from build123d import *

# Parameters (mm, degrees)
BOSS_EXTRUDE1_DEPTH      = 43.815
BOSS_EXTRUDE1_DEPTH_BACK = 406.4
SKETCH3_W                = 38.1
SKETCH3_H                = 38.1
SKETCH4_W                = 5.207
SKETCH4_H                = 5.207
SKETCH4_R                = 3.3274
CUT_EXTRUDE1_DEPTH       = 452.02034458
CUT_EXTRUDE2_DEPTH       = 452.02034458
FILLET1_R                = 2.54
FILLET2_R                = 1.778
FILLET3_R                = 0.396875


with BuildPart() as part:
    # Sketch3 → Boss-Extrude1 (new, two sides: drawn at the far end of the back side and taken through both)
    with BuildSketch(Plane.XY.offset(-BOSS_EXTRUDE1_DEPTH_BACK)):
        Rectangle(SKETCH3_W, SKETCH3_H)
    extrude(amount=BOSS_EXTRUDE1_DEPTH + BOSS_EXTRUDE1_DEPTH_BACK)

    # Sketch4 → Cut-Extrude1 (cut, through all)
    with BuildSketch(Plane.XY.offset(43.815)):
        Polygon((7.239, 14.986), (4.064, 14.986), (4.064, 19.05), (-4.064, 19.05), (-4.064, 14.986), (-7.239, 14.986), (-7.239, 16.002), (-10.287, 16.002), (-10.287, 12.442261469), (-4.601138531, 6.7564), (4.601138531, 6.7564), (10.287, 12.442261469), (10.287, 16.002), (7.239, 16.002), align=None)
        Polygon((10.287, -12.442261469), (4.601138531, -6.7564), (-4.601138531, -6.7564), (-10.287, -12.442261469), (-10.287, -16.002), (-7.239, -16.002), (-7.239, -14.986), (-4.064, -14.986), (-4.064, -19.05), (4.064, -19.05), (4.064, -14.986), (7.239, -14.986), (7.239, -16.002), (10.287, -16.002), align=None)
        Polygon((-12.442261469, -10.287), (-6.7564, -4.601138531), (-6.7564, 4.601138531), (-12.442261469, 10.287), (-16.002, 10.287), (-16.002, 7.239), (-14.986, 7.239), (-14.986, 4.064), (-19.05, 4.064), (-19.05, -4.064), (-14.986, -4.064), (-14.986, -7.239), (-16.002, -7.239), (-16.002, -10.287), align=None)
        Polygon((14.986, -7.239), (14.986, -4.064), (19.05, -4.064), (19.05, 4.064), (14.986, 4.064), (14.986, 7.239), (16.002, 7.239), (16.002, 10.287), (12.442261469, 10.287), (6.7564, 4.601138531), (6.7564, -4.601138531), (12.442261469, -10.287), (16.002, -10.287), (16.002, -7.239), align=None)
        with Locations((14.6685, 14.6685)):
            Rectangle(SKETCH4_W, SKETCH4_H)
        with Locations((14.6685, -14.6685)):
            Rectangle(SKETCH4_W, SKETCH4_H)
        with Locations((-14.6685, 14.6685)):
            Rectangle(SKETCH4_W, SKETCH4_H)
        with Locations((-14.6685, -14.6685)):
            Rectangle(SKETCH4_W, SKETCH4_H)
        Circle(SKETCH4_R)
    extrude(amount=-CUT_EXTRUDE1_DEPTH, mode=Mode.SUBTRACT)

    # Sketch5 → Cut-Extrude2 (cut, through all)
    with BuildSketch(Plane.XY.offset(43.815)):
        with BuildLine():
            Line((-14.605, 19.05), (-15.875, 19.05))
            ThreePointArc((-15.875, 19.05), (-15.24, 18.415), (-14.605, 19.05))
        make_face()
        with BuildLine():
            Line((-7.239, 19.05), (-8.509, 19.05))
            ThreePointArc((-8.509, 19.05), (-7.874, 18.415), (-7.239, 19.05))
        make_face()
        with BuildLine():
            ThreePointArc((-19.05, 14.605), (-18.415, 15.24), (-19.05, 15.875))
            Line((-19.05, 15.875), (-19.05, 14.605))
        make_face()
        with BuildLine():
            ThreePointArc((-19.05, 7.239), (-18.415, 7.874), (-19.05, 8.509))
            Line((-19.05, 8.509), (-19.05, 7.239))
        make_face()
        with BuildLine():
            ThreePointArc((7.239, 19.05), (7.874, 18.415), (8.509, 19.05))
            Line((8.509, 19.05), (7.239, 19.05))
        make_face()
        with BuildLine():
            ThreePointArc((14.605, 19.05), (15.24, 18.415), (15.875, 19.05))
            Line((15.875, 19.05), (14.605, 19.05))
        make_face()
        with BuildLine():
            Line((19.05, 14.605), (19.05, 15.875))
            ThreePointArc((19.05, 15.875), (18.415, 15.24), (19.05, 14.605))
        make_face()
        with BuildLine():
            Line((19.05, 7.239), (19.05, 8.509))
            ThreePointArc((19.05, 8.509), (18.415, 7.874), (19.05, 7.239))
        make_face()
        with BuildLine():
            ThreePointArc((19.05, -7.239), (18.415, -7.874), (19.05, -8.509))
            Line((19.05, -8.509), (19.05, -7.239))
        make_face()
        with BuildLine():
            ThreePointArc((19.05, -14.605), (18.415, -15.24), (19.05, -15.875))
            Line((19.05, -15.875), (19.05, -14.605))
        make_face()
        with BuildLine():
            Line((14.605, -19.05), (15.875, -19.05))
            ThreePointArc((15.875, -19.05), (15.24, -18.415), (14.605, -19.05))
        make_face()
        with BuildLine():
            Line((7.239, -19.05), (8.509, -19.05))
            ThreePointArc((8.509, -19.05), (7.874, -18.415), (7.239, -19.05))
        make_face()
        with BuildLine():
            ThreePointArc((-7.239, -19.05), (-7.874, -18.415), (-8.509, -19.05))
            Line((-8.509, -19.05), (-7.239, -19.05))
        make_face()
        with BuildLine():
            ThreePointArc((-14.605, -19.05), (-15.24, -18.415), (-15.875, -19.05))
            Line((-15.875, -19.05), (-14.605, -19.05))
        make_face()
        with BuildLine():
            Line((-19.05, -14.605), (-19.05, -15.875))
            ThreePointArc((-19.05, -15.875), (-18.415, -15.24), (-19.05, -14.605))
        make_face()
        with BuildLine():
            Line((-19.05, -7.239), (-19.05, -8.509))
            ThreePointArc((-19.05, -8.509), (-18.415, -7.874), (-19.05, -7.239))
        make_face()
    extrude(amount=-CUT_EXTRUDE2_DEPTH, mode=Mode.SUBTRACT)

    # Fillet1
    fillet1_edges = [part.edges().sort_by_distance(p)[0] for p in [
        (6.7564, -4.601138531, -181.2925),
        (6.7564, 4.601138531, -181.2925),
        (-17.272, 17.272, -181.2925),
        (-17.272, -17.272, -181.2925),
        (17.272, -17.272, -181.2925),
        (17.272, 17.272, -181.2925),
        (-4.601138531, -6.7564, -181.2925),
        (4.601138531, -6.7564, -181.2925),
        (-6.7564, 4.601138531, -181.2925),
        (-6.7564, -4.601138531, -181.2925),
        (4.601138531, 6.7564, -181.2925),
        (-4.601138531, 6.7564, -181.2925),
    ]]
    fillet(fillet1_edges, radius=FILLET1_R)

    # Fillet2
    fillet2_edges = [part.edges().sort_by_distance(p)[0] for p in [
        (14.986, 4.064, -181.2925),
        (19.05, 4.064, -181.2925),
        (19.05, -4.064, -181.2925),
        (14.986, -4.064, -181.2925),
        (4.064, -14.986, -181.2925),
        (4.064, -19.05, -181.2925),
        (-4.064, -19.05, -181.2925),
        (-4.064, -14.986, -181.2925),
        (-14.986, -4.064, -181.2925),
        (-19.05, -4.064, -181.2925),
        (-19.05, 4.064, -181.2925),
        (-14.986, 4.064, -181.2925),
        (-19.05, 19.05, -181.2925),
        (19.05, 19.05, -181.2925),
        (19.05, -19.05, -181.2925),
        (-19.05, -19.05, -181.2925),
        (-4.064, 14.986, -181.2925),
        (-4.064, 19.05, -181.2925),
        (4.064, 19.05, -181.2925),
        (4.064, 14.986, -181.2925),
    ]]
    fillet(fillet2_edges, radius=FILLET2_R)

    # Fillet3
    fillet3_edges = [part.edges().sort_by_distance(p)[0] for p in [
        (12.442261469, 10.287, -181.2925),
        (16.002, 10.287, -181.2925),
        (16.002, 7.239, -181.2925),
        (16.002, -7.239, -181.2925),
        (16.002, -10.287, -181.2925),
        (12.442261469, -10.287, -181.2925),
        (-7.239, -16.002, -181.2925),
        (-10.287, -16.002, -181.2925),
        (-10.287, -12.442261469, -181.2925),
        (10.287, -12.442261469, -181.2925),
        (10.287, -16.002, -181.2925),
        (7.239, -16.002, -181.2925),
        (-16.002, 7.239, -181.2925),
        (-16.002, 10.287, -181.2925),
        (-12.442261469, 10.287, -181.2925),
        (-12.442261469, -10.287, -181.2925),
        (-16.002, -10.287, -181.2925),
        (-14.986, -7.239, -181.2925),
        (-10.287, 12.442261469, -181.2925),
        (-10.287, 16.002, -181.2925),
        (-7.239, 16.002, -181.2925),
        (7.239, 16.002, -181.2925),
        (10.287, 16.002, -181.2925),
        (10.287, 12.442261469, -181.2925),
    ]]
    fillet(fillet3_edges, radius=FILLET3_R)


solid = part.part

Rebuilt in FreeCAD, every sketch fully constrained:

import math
import FreeCAD as App
import Part
import Sketcher
from FreeCAD import Vector
Q = App.Units.Quantity


def edges_at(feature, points):
    """Names of the edges that pass closest to the given points."""
    edges = feature.Shape.Edges
    near = lambda p: min(range(len(edges)), key=lambda i: edges[i].distToShape(Part.Vertex(*p))[0])
    return sorted({f"Edge{near(p) + 1}" for p in points})

doc = App.newDocument("Part")
params = doc.addObject("Spreadsheet::Sheet", "Params")
for row, (alias, value) in enumerate([
    ("sketch1_width", "1.5 in"),
    ("pad1_length", "1.725 in"),
    ("pad1_length2", "16 in"),
    ("sketch2_diameter", "0.262 in"),
    ("sketch2_width", "0.32 in"),
    ("sketch2_width2", "0.12 in"),
    ("sketch2_width3", "0.04 in"),
    ("sketch2_width4", "0.16 in"),
    ("sketch3_radius", "0.025 in"),
    ("fillet_radius", "0.1 in"),
    ("fillet2_radius", "0.07 in"),
    ("fillet3_radius", "0.015625 in"),
], start=1):
    params.set(f"A{row}", alias)
    params.set(f"B{row}", "=" + value)
    params.setAlias(f"B{row}", alias)

body = doc.addObject("PartDesign::Body", "Body")

# Sketch on XY plane
sketch1 = body.newObject("Sketcher::SketchObject", "Sketch")
sketch1.AttachmentSupport = (doc.getObject("XY_Plane"), [""])
sketch1.MapMode = "FlatFace"
sketch1.addGeometry([
    Part.LineSegment(Vector(-19, 19, 0), Vector(-19, -19, 0)),
    Part.LineSegment(Vector(-19, -19, 0), Vector(19, -19, 0)),
    Part.LineSegment(Vector(19, -19, 0), Vector(19, 19, 0)),
    Part.LineSegment(Vector(19, 19, 0), Vector(-19, 19, 0)),
], False)
sketch1.addConstraint([
    Sketcher.Constraint("Coincident", 0, 2, 1, 1),
    Sketcher.Constraint("Coincident", 1, 2, 2, 1),
    Sketcher.Constraint("Coincident", 2, 2, 3, 1),
    Sketcher.Constraint("Coincident", 3, 2, 0, 1),
    Sketcher.Constraint("Vertical", 0),
    Sketcher.Constraint("Horizontal", 1),
    Sketcher.Constraint("Vertical", 2),
    Sketcher.Constraint("Horizontal", 3),
    Sketcher.Constraint("Symmetric", 0, 2, 2, 2, -1, 1),
    Sketcher.Constraint("Equal", 3, 0),
    Sketcher.Constraint("DistanceX", 1, 1, 1, 2, Q("1.5 in")),
])
sketch1.setExpression("Constraints[10]", "Params.sketch1_width")
pad1 = body.newObject("PartDesign::Pad", "Pad")
pad1.Profile = sketch1
pad1.Type = "TwoLengths"
pad1.setExpression("Length", "Params.pad1_length")
pad1.setExpression("Length2", "Params.pad1_length2")

# Sketch on XY plane
sketch2 = body.newObject("Sketcher::SketchObject", "Sketch001")
sketch2.AttachmentSupport = (doc.getObject("XY_Plane"), [""])
sketch2.MapMode = "FlatFace"
sketch2.AttachmentOffset = App.Placement(Vector(0, 0, 1.725 * 25.4), App.Rotation())
sketch2.addGeometry([
    Part.LineSegment(Vector(7.2, 15, 0), Vector(4.1, 15, 0)),  # 0
    Part.LineSegment(Vector(4.1, 15, 0), Vector(4.1, 19.1, 0)),  # 1
    Part.LineSegment(Vector(4.1, 19.1, 0), Vector(-4.1, 19.1, 0)),  # 2
    Part.LineSegment(Vector(-4.1, 19.1, 0), Vector(-4.1, 15, 0)),  # 3
    Part.LineSegment(Vector(-4.1, 15, 0), Vector(-7.2, 15, 0)),  # 4
    Part.LineSegment(Vector(-7.2, 15, 0), Vector(-7.2, 16, 0)),  # 5
    Part.LineSegment(Vector(-7.2, 16, 0), Vector(-10.3, 16, 0)),  # 6
    Part.LineSegment(Vector(-10.3, 16, 0), Vector(-10.3, 12.4, 0)),  # 7
    Part.LineSegment(Vector(-10.3, 12.4, 0), Vector(-4.6, 6.8, 0)),  # 8
    Part.LineSegment(Vector(-4.6, 6.8, 0), Vector(4.6, 6.8, 0)),  # 9
    Part.LineSegment(Vector(4.6, 6.8, 0), Vector(10.3, 12.4, 0)),  # 10
    Part.LineSegment(Vector(10.3, 12.4, 0), Vector(10.3, 16, 0)),  # 11
    Part.LineSegment(Vector(10.3, 16, 0), Vector(7.2, 16, 0)),  # 12
    Part.LineSegment(Vector(7.2, 16, 0), Vector(7.2, 15, 0)),  # 13
    Part.LineSegment(Vector(10.3, -12.4, 0), Vector(4.6, -6.8, 0)),  # 14
    Part.LineSegment(Vector(4.6, -6.8, 0), Vector(-4.6, -6.8, 0)),  # 15
    Part.LineSegment(Vector(-4.6, -6.8, 0), Vector(-10.3, -12.4, 0)),  # 16
    Part.LineSegment(Vector(-10.3, -12.4, 0), Vector(-10.3, -16, 0)),  # 17
    Part.LineSegment(Vector(-10.3, -16, 0), Vector(-7.2, -16, 0)),  # 18
    Part.LineSegment(Vector(-7.2, -16, 0), Vector(-7.2, -15, 0)),  # 19
    Part.LineSegment(Vector(-7.2, -15, 0), Vector(-4.1, -15, 0)),  # 20
    Part.LineSegment(Vector(-4.1, -15, 0), Vector(-4.1, -19.1, 0)),  # 21
    Part.LineSegment(Vector(-4.1, -19.1, 0), Vector(4.1, -19.1, 0)),  # 22
    Part.LineSegment(Vector(4.1, -19.1, 0), Vector(4.1, -15, 0)),  # 23
    Part.LineSegment(Vector(4.1, -15, 0), Vector(7.2, -15, 0)),  # 24
    Part.LineSegment(Vector(7.2, -15, 0), Vector(7.2, -16, 0)),  # 25
    Part.LineSegment(Vector(7.2, -16, 0), Vector(10.3, -16, 0)),  # 26
    Part.LineSegment(Vector(10.3, -16, 0), Vector(10.3, -12.4, 0)),  # 27
    Part.LineSegment(Vector(-12.4, -10.3, 0), Vector(-6.8, -4.6, 0)),  # 28
    Part.LineSegment(Vector(-6.8, -4.6, 0), Vector(-6.8, 4.6, 0)),  # 29
    Part.LineSegment(Vector(-6.8, 4.6, 0), Vector(-12.4, 10.3, 0)),  # 30
    Part.LineSegment(Vector(-12.4, 10.3, 0), Vector(-16, 10.3, 0)),  # 31
    Part.LineSegment(Vector(-16, 10.3, 0), Vector(-16, 7.2, 0)),  # 32
    Part.LineSegment(Vector(-16, 7.2, 0), Vector(-15, 7.2, 0)),  # 33
    Part.LineSegment(Vector(-15, 7.2, 0), Vector(-15, 4.1, 0)),  # 34
    Part.LineSegment(Vector(-15, 4.1, 0), Vector(-19.1, 4.1, 0)),  # 35
    Part.LineSegment(Vector(-19.1, 4.1, 0), Vector(-19.1, -4.1, 0)),  # 36
    Part.LineSegment(Vector(-19.1, -4.1, 0), Vector(-15, -4.1, 0)),  # 37
    Part.LineSegment(Vector(-15, -4.1, 0), Vector(-15, -7.2, 0)),  # 38
    Part.LineSegment(Vector(-15, -7.2, 0), Vector(-16, -7.2, 0)),  # 39
    Part.LineSegment(Vector(-16, -7.2, 0), Vector(-16, -10.3, 0)),  # 40
    Part.LineSegment(Vector(-16, -10.3, 0), Vector(-12.4, -10.3, 0)),  # 41
    Part.LineSegment(Vector(15, -7.2, 0), Vector(15, -4.1, 0)),  # 42
    Part.LineSegment(Vector(15, -4.1, 0), Vector(19.1, -4.1, 0)),  # 43
    Part.LineSegment(Vector(19.1, -4.1, 0), Vector(19.1, 4.1, 0)),  # 44
    Part.LineSegment(Vector(19.1, 4.1, 0), Vector(15, 4.1, 0)),  # 45
    Part.LineSegment(Vector(15, 4.1, 0), Vector(15, 7.2, 0)),  # 46
    Part.LineSegment(Vector(15, 7.2, 0), Vector(16, 7.2, 0)),  # 47
    Part.LineSegment(Vector(16, 7.2, 0), Vector(16, 10.3, 0)),  # 48
    Part.LineSegment(Vector(16, 10.3, 0), Vector(12.4, 10.3, 0)),  # 49
    Part.LineSegment(Vector(12.4, 10.3, 0), Vector(6.8, 4.6, 0)),  # 50
    Part.LineSegment(Vector(6.8, 4.6, 0), Vector(6.8, -4.6, 0)),  # 51
    Part.LineSegment(Vector(6.8, -4.6, 0), Vector(12.4, -10.3, 0)),  # 52
    Part.LineSegment(Vector(12.4, -10.3, 0), Vector(16, -10.3, 0)),  # 53
    Part.LineSegment(Vector(16, -10.3, 0), Vector(16, -7.2, 0)),  # 54
    Part.LineSegment(Vector(16, -7.2, 0), Vector(15, -7.2, 0)),  # 55
    Part.LineSegment(Vector(12.1, 17.3, 0), Vector(12.1, 12.1, 0)),  # 56
    Part.LineSegment(Vector(12.1, 12.1, 0), Vector(17.3, 12.1, 0)),  # 57
    Part.LineSegment(Vector(17.3, 12.1, 0), Vector(17.3, 17.3, 0)),  # 58
    Part.LineSegment(Vector(17.3, 17.3, 0), Vector(12.1, 17.3, 0)),  # 59
    Part.LineSegment(Vector(12.1, -12.1, 0), Vector(12.1, -17.3, 0)),  # 60
    Part.LineSegment(Vector(12.1, -17.3, 0), Vector(17.3, -17.3, 0)),  # 61
    Part.LineSegment(Vector(17.3, -17.3, 0), Vector(17.3, -12.1, 0)),  # 62
    Part.LineSegment(Vector(17.3, -12.1, 0), Vector(12.1, -12.1, 0)),  # 63
    Part.LineSegment(Vector(-17.3, 17.3, 0), Vector(-17.3, 12.1, 0)),  # 64
    Part.LineSegment(Vector(-17.3, 12.1, 0), Vector(-12.1, 12.1, 0)),  # 65
    Part.LineSegment(Vector(-12.1, 12.1, 0), Vector(-12.1, 17.3, 0)),  # 66
    Part.LineSegment(Vector(-12.1, 17.3, 0), Vector(-17.3, 17.3, 0)),  # 67
    Part.LineSegment(Vector(-17.3, -12.1, 0), Vector(-17.3, -17.3, 0)),  # 68
    Part.LineSegment(Vector(-17.3, -17.3, 0), Vector(-12.1, -17.3, 0)),  # 69
    Part.LineSegment(Vector(-12.1, -17.3, 0), Vector(-12.1, -12.1, 0)),  # 70
    Part.LineSegment(Vector(-12.1, -12.1, 0), Vector(-17.3, -12.1, 0)),  # 71
    Part.Circle(Vector(0, 0, 0), Vector(0, 0, 1), 3.3),  # 72
], False)
sketch2.addConstraint([
    Sketcher.Constraint("Coincident", 0, 2, 1, 1),
    Sketcher.Constraint("Coincident", 1, 2, 2, 1),
    Sketcher.Constraint("Coincident", 2, 2, 3, 1),
    Sketcher.Constraint("Coincident", 3, 2, 4, 1),
    Sketcher.Constraint("Coincident", 4, 2, 5, 1),
    Sketcher.Constraint("Coincident", 5, 2, 6, 1),
    Sketcher.Constraint("Coincident", 6, 2, 7, 1),
    Sketcher.Constraint("Coincident", 7, 2, 8, 1),
    Sketcher.Constraint("Coincident", 8, 2, 9, 1),
    Sketcher.Constraint("Coincident", 9, 2, 10, 1),
    Sketcher.Constraint("Coincident", 10, 2, 11, 1),
    Sketcher.Constraint("Coincident", 11, 2, 12, 1),
    Sketcher.Constraint("Coincident", 12, 2, 13, 1),
    Sketcher.Constraint("Coincident", 13, 2, 0, 1),
    Sketcher.Constraint("Coincident", 14, 2, 15, 1),
    Sketcher.Constraint("Coincident", 15, 2, 16, 1),
    Sketcher.Constraint("Coincident", 16, 2, 17, 1),
    Sketcher.Constraint("Coincident", 17, 2, 18, 1),
    Sketcher.Constraint("Coincident", 18, 2, 19, 1),
    Sketcher.Constraint("Coincident", 19, 2, 20, 1),
    Sketcher.Constraint("Coincident", 20, 2, 21, 1),
    Sketcher.Constraint("Coincident", 21, 2, 22, 1),
    Sketcher.Constraint("Coincident", 22, 2, 23, 1),
    Sketcher.Constraint("Coincident", 23, 2, 24, 1),
    Sketcher.Constraint("Coincident", 24, 2, 25, 1),
    Sketcher.Constraint("Coincident", 25, 2, 26, 1),
    Sketcher.Constraint("Coincident", 26, 2, 27, 1),
    Sketcher.Constraint("Coincident", 27, 2, 14, 1),
    Sketcher.Constraint("Coincident", 28, 2, 29, 1),
    Sketcher.Constraint("Coincident", 29, 2, 30, 1),
    Sketcher.Constraint("Coincident", 30, 2, 31, 1),
    Sketcher.Constraint("Coincident", 31, 2, 32, 1),
    Sketcher.Constraint("Coincident", 32, 2, 33, 1),
    Sketcher.Constraint("Coincident", 33, 2, 34, 1),
    Sketcher.Constraint("Coincident", 34, 2, 35, 1),
    Sketcher.Constraint("Coincident", 35, 2, 36, 1),
    Sketcher.Constraint("Coincident", 36, 2, 37, 1),
    Sketcher.Constraint("Coincident", 37, 2, 38, 1),
    Sketcher.Constraint("Coincident", 38, 2, 39, 1),
    Sketcher.Constraint("Coincident", 39, 2, 40, 1),
    Sketcher.Constraint("Coincident", 40, 2, 41, 1),
    Sketcher.Constraint("Coincident", 41, 2, 28, 1),
    Sketcher.Constraint("Coincident", 42, 2, 43, 1),
    Sketcher.Constraint("Coincident", 43, 2, 44, 1),
    Sketcher.Constraint("Coincident", 44, 2, 45, 1),
    Sketcher.Constraint("Coincident", 45, 2, 46, 1),
    Sketcher.Constraint("Coincident", 46, 2, 47, 1),
    Sketcher.Constraint("Coincident", 47, 2, 48, 1),
    Sketcher.Constraint("Coincident", 48, 2, 49, 1),
    Sketcher.Constraint("Coincident", 49, 2, 50, 1),
    Sketcher.Constraint("Coincident", 50, 2, 51, 1),
    Sketcher.Constraint("Coincident", 51, 2, 52, 1),
    Sketcher.Constraint("Coincident", 52, 2, 53, 1),
    Sketcher.Constraint("Coincident", 53, 2, 54, 1),
    Sketcher.Constraint("Coincident", 54, 2, 55, 1),
    Sketcher.Constraint("Coincident", 55, 2, 42, 1),
    Sketcher.Constraint("Coincident", 56, 2, 57, 1),
    Sketcher.Constraint("Coincident", 57, 2, 58, 1),
    Sketcher.Constraint("Coincident", 58, 2, 59, 1),
    Sketcher.Constraint("Coincident", 59, 2, 56, 1),
    Sketcher.Constraint("Coincident", 60, 2, 61, 1),
    Sketcher.Constraint("Coincident", 61, 2, 62, 1),
    Sketcher.Constraint("Coincident", 62, 2, 63, 1),
    Sketcher.Constraint("Coincident", 63, 2, 60, 1),
    Sketcher.Constraint("Coincident", 64, 2, 65, 1),
    Sketcher.Constraint("Coincident", 65, 2, 66, 1),
    Sketcher.Constraint("Coincident", 66, 2, 67, 1),
    Sketcher.Constraint("Coincident", 67, 2, 64, 1),
    Sketcher.Constraint("Coincident", 68, 2, 69, 1),
    Sketcher.Constraint("Coincident", 69, 2, 70, 1),
    Sketcher.Constraint("Coincident", 70, 2, 71, 1),
    Sketcher.Constraint("Coincident", 71, 2, 68, 1),
    Sketcher.Constraint("Horizontal", 0),
    Sketcher.Constraint("Vertical", 1),
    Sketcher.Constraint("Horizontal", 2),
    Sketcher.Constraint("Vertical", 3),
    Sketcher.Constraint("Horizontal", 4),
    Sketcher.Constraint("Vertical", 5),
    Sketcher.Constraint("Horizontal", 6),
    Sketcher.Constraint("Vertical", 7),
    Sketcher.Constraint("Horizontal", 9),
    Sketcher.Constraint("Vertical", 11),
    Sketcher.Constraint("Horizontal", 12),
    Sketcher.Constraint("Vertical", 13),
    Sketcher.Constraint("Horizontal", 15),
    Sketcher.Constraint("Vertical", 17),
    Sketcher.Constraint("Horizontal", 18),
    Sketcher.Constraint("Vertical", 19),
    Sketcher.Constraint("Horizontal", 20),
    Sketcher.Constraint("Vertical", 21),
    Sketcher.Constraint("Horizontal", 22),
    Sketcher.Constraint("Vertical", 23),
    Sketcher.Constraint("Horizontal", 24),
    Sketcher.Constraint("Vertical", 25),
    Sketcher.Constraint("Horizontal", 26),
    Sketcher.Constraint("Vertical", 27),
    Sketcher.Constraint("Vertical", 29),
    Sketcher.Constraint("Horizontal", 31),
    Sketcher.Constraint("Vertical", 32),
    Sketcher.Constraint("Horizontal", 33),
    Sketcher.Constraint("Vertical", 34),
    Sketcher.Constraint("Horizontal", 35),
    Sketcher.Constraint("Vertical", 36),
    Sketcher.Constraint("Horizontal", 37),
    Sketcher.Constraint("Vertical", 38),
    Sketcher.Constraint("Horizontal", 39),
    Sketcher.Constraint("Vertical", 40),
    Sketcher.Constraint("Horizontal", 41),
    Sketcher.Constraint("Vertical", 42),
    Sketcher.Constraint("Horizontal", 43),
    Sketcher.Constraint("Vertical", 44),
    Sketcher.Constraint("Horizontal", 45),
    Sketcher.Constraint("Vertical", 46),
    Sketcher.Constraint("Horizontal", 47),
    Sketcher.Constraint("Vertical", 48),
    Sketcher.Constraint("Horizontal", 49),
    Sketcher.Constraint("Vertical", 51),
    Sketcher.Constraint("Horizontal", 53),
    Sketcher.Constraint("Vertical", 54),
    Sketcher.Constraint("Horizontal", 55),
    Sketcher.Constraint("Vertical", 56),
    Sketcher.Constraint("Horizontal", 57),
    Sketcher.Constraint("Vertical", 58),
    Sketcher.Constraint("Horizontal", 59),
    Sketcher.Constraint("Vertical", 60),
    Sketcher.Constraint("Horizontal", 61),
    Sketcher.Constraint("Vertical", 62),
    Sketcher.Constraint("Horizontal", 63),
    Sketcher.Constraint("Vertical", 64),
    Sketcher.Constraint("Horizontal", 65),
    Sketcher.Constraint("Vertical", 66),
    Sketcher.Constraint("Horizontal", 67),
    Sketcher.Constraint("Vertical", 68),
    Sketcher.Constraint("Horizontal", 69),
    Sketcher.Constraint("Vertical", 70),
    Sketcher.Constraint("Horizontal", 71),
    Sketcher.Constraint("Coincident", 72, 3, -1, 1),
    Sketcher.Constraint("Symmetric", 8, 2, 14, 2, -1, 1),
    Sketcher.Constraint("Symmetric", 10, 2, 16, 2, -1, 1),
    Sketcher.Constraint("Symmetric", 12, 2, 18, 2, -1, 1),
    Sketcher.Constraint("Symmetric", 0, 2, 20, 2, -1, 1),
    Sketcher.Constraint("Symmetric", 2, 2, 22, 2, -1, 1),
    Sketcher.Constraint("Symmetric", 4, 2, 24, 2, -1, 1),
    Sketcher.Constraint("Symmetric", 6, 2, 26, 2, -1, 1),
    Sketcher.Constraint("Symmetric", 34, 2, 42, 2, -1, 1),
    Sketcher.Constraint("Symmetric", 36, 2, 44, 2, -1, 1),
    Sketcher.Constraint("Symmetric", 38, 2, 46, 2, -1, 1),
    Sketcher.Constraint("Symmetric", 40, 2, 48, 2, -1, 1),
    Sketcher.Constraint("Symmetric", 28, 2, 50, 2, -1, 1),
    Sketcher.Constraint("Symmetric", 30, 2, 52, 2, -1, 1),
    Sketcher.Constraint("Symmetric", 32, 2, 54, 2, -1, 1),
    Sketcher.Constraint("Symmetric", 62, 2, 64, 2, -1, 1),
    Sketcher.Constraint("Symmetric", 60, 2, 66, 2, -1, 1),
    Sketcher.Constraint("Symmetric", 58, 2, 68, 2, -1, 1),
    Sketcher.Constraint("Symmetric", 56, 2, 70, 2, -1, 1),
    Sketcher.Constraint("Symmetric", 0, 2, 3, 2, -2),
    Sketcher.Constraint("Symmetric", 7, 2, 10, 2, -2),
    Sketcher.Constraint("Symmetric", 5, 2, 12, 2, -2),
    Sketcher.Constraint("Symmetric", 37, 2, 42, 2, -2),
    Sketcher.Constraint("Symmetric", 32, 2, 47, 2, -2),
    Sketcher.Constraint("Symmetric", 30, 2, 49, 2, -2),
    Sketcher.Constraint("Symmetric", 57, 2, 64, 2, -2),
    Sketcher.Constraint("Symmetric", 59, 2, 66, 2, -2),
    Sketcher.Constraint("Perpendicular", 8, 10),
    Sketcher.Constraint("Perpendicular", 10, 14),
    Sketcher.Constraint("Perpendicular", 14, 16),
    Sketcher.Constraint("Parallel", 16, 28),
    Sketcher.Constraint("Perpendicular", 28, 30),
    Sketcher.Constraint("Perpendicular", 30, 50),
    Sketcher.Constraint("Perpendicular", 50, 52),
    Sketcher.Constraint("Horizontal", 29, 2, 50, 2),
    Sketcher.Constraint("Equal", 45, 1),
    Sketcher.Constraint("Equal", 55, 5),
    Sketcher.Constraint("Equal", 53, 7),
    Sketcher.Constraint("Equal", 15, 29),
    Sketcher.Constraint("Equal", 26, 32),
    Sketcher.Constraint("Equal", 24, 34),
    Sketcher.Constraint("Equal", 22, 36),
    Sketcher.Constraint("Equal", 71, 56),
    Sketcher.Constraint("Diameter", 72, Q("0.262 in")),
    Sketcher.Constraint("DistanceX", 2, 2, 2, 1, Q("0.32 in")),
    Sketcher.Constraint("DistanceX", 6, 2, 6, 1, Q("0.12 in")),
    Sketcher.Constraint("DistanceX", 33, 1, 33, 2, Q("0.04 in")),
    Sketcher.Constraint("DistanceX", 35, 2, 35, 1, Q("0.16 in")),
    Sketcher.Constraint("DistanceX", 0, 2, 0, 1, Q("0.125 in")),
    Sketcher.Constraint("DistanceX", 57, 1, 57, 2, Q("0.205 in")),
    Sketcher.Constraint("DistanceY", -1, 1, 0, 2, Q("0.59 in")),
    Sketcher.Constraint("DistanceX", 31, 2, -1, 1, Q("0.63 in")),
    Sketcher.Constraint("DistanceX", -1, 1, 57, 2, Q("0.68 in")),
    Sketcher.Constraint("DistanceY", -1, 1, 58, 2, Q("0.68 in")),
    Sketcher.Constraint("DistanceY", -1, 1, 8, 2, Q("0.266 in")),
    Sketcher.Constraint("DistanceX", 31, 2, 31, 1, Q("3.559739 mm")),
])
sketch2.setExpression("Constraints[179]", "Params.sketch2_diameter")
sketch2.setExpression("Constraints[180]", "Params.sketch2_width")
sketch2.setExpression("Constraints[181]", "Params.sketch2_width2")
sketch2.setExpression("Constraints[182]", "Params.sketch2_width3")
sketch2.setExpression("Constraints[183]", "Params.sketch2_width4")
pocket1 = body.newObject("PartDesign::Pocket", "Pocket")
pocket1.Profile = sketch2
pocket1.Type = "ThroughAll"

# Sketch on XY plane
sketch3 = body.newObject("Sketcher::SketchObject", "Sketch002")
sketch3.AttachmentSupport = (doc.getObject("XY_Plane"), [""])
sketch3.MapMode = "FlatFace"
sketch3.AttachmentOffset = App.Placement(Vector(0, 0, 1.725 * 25.4), App.Rotation())
sketch3.addGeometry([
    Part.LineSegment(Vector(-14.6, 19.1, 0), Vector(-15.9, 19.1, 0)),  # 0
    Part.ArcOfCircle(Part.Circle(Vector(-15.2, 19.1, 0), Vector(0, 0, 1), 0.6), math.radians(180), math.radians(360)),  # 1
    Part.LineSegment(Vector(-7.2, 19.1, 0), Vector(-8.5, 19.1, 0)),  # 2
    Part.ArcOfCircle(Part.Circle(Vector(-7.9, 19.1, 0), Vector(0, 0, 1), 0.6), math.radians(180), math.radians(360)),  # 3
    Part.ArcOfCircle(Part.Circle(Vector(-19.1, 15.2, 0), Vector(0, 0, 1), 0.6), math.radians(-90), math.radians(90)),  # 4
    Part.LineSegment(Vector(-19.1, 15.9, 0), Vector(-19.1, 14.6, 0)),  # 5
    Part.ArcOfCircle(Part.Circle(Vector(-19.1, 7.9, 0), Vector(0, 0, 1), 0.6), math.radians(-90), math.radians(90)),  # 6
    Part.LineSegment(Vector(-19.1, 8.5, 0), Vector(-19.1, 7.2, 0)),  # 7
    Part.ArcOfCircle(Part.Circle(Vector(7.9, 19.1, 0), Vector(0, 0, 1), 0.6), math.radians(180), math.radians(360)),  # 8
    Part.LineSegment(Vector(8.5, 19.1, 0), Vector(7.2, 19.1, 0)),  # 9
    Part.ArcOfCircle(Part.Circle(Vector(15.2, 19.1, 0), Vector(0, 0, 1), 0.6), math.radians(180), math.radians(360)),  # 10
    Part.LineSegment(Vector(15.9, 19.1, 0), Vector(14.6, 19.1, 0)),  # 11
    Part.LineSegment(Vector(19.1, 14.6, 0), Vector(19.1, 15.9, 0)),  # 12
    Part.ArcOfCircle(Part.Circle(Vector(19.1, 15.2, 0), Vector(0, 0, 1), 0.6), math.radians(90), math.radians(270)),  # 13
    Part.LineSegment(Vector(19.1, 7.2, 0), Vector(19.1, 8.5, 0)),  # 14
    Part.ArcOfCircle(Part.Circle(Vector(19.1, 7.9, 0), Vector(0, 0, 1), 0.6), math.radians(90), math.radians(270)),  # 15
    Part.ArcOfCircle(Part.Circle(Vector(19.1, -7.9, 0), Vector(0, 0, 1), 0.6), math.radians(90), math.radians(270)),  # 16
    Part.LineSegment(Vector(19.1, -8.5, 0), Vector(19.1, -7.2, 0)),  # 17
    Part.ArcOfCircle(Part.Circle(Vector(19.1, -15.2, 0), Vector(0, 0, 1), 0.6), math.radians(90), math.radians(270)),  # 18
    Part.LineSegment(Vector(19.1, -15.9, 0), Vector(19.1, -14.6, 0)),  # 19
    Part.LineSegment(Vector(14.6, -19.1, 0), Vector(15.9, -19.1, 0)),  # 20
    Part.ArcOfCircle(Part.Circle(Vector(15.2, -19.1, 0), Vector(0, 0, 1), 0.6), math.radians(0), math.radians(180)),  # 21
    Part.LineSegment(Vector(7.2, -19.1, 0), Vector(8.5, -19.1, 0)),  # 22
    Part.ArcOfCircle(Part.Circle(Vector(7.9, -19.1, 0), Vector(0, 0, 1), 0.6), math.radians(0), math.radians(180)),  # 23
    Part.ArcOfCircle(Part.Circle(Vector(-7.9, -19.1, 0), Vector(0, 0, 1), 0.6), math.radians(0), math.radians(180)),  # 24
    Part.LineSegment(Vector(-8.5, -19.1, 0), Vector(-7.2, -19.1, 0)),  # 25
    Part.ArcOfCircle(Part.Circle(Vector(-15.2, -19.1, 0), Vector(0, 0, 1), 0.6), math.radians(0), math.radians(180)),  # 26
    Part.LineSegment(Vector(-15.9, -19.1, 0), Vector(-14.6, -19.1, 0)),  # 27
    Part.LineSegment(Vector(-19.1, -14.6, 0), Vector(-19.1, -15.9, 0)),  # 28
    Part.ArcOfCircle(Part.Circle(Vector(-19.1, -15.2, 0), Vector(0, 0, 1), 0.6), math.radians(-90), math.radians(90)),  # 29
    Part.LineSegment(Vector(-19.1, -7.2, 0), Vector(-19.1, -8.5, 0)),  # 30
    Part.ArcOfCircle(Part.Circle(Vector(-19.1, -7.9, 0), Vector(0, 0, 1), 0.6), math.radians(-90), math.radians(90)),  # 31
], False)
sketch3.addConstraint([
    Sketcher.Constraint("Coincident", 0, 1, 1, 2),
    Sketcher.Constraint("Coincident", 1, 1, 0, 2),
    Sketcher.Constraint("Coincident", 2, 1, 3, 2),
    Sketcher.Constraint("Coincident", 3, 1, 2, 2),
    Sketcher.Constraint("Coincident", 4, 1, 5, 2),
    Sketcher.Constraint("Coincident", 5, 1, 4, 2),
    Sketcher.Constraint("Coincident", 6, 1, 7, 2),
    Sketcher.Constraint("Coincident", 7, 1, 6, 2),
    Sketcher.Constraint("Coincident", 8, 1, 9, 2),
    Sketcher.Constraint("Coincident", 9, 1, 8, 2),
    Sketcher.Constraint("Coincident", 10, 1, 11, 2),
    Sketcher.Constraint("Coincident", 11, 1, 10, 2),
    Sketcher.Constraint("Coincident", 12, 1, 13, 2),
    Sketcher.Constraint("Coincident", 13, 1, 12, 2),
    Sketcher.Constraint("Coincident", 14, 1, 15, 2),
    Sketcher.Constraint("Coincident", 15, 1, 14, 2),
    Sketcher.Constraint("Coincident", 16, 1, 17, 2),
    Sketcher.Constraint("Coincident", 17, 1, 16, 2),
    Sketcher.Constraint("Coincident", 18, 1, 19, 2),
    Sketcher.Constraint("Coincident", 19, 1, 18, 2),
    Sketcher.Constraint("Coincident", 20, 1, 21, 2),
    Sketcher.Constraint("Coincident", 21, 1, 20, 2),
    Sketcher.Constraint("Coincident", 22, 1, 23, 2),
    Sketcher.Constraint("Coincident", 23, 1, 22, 2),
    Sketcher.Constraint("Coincident", 24, 1, 25, 2),
    Sketcher.Constraint("Coincident", 25, 1, 24, 2),
    Sketcher.Constraint("Coincident", 26, 1, 27, 2),
    Sketcher.Constraint("Coincident", 27, 1, 26, 2),
    Sketcher.Constraint("Coincident", 28, 1, 29, 2),
    Sketcher.Constraint("Coincident", 29, 1, 28, 2),
    Sketcher.Constraint("Coincident", 30, 1, 31, 2),
    Sketcher.Constraint("Coincident", 31, 1, 30, 2),
    Sketcher.Constraint("Horizontal", 0),
    Sketcher.Constraint("Horizontal", 2),
    Sketcher.Constraint("Vertical", 5),
    Sketcher.Constraint("Vertical", 7),
    Sketcher.Constraint("Horizontal", 9),
    Sketcher.Constraint("Horizontal", 11),
    Sketcher.Constraint("Vertical", 12),
    Sketcher.Constraint("Vertical", 14),
    Sketcher.Constraint("Vertical", 17),
    Sketcher.Constraint("Vertical", 19),
    Sketcher.Constraint("Horizontal", 20),
    Sketcher.Constraint("Horizontal", 22),
    Sketcher.Constraint("Horizontal", 25),
    Sketcher.Constraint("Horizontal", 27),
    Sketcher.Constraint("Vertical", 28),
    Sketcher.Constraint("Vertical", 30),
    Sketcher.Constraint("Equal", 1, 3),
    Sketcher.Constraint("Equal", 3, 4),
    Sketcher.Constraint("Equal", 4, 6),
    Sketcher.Constraint("Equal", 6, 8),
    Sketcher.Constraint("Equal", 8, 10),
    Sketcher.Constraint("Equal", 10, 13),
    Sketcher.Constraint("Equal", 13, 15),
    Sketcher.Constraint("Equal", 15, 16),
    Sketcher.Constraint("Equal", 16, 18),
    Sketcher.Constraint("Equal", 18, 21),
    Sketcher.Constraint("Equal", 21, 23),
    Sketcher.Constraint("Equal", 23, 24),
    Sketcher.Constraint("Equal", 24, 26),
    Sketcher.Constraint("Equal", 26, 29),
    Sketcher.Constraint("Equal", 29, 31),
    Sketcher.Constraint("Symmetric", 6, 3, 16, 3, -1, 1),
    Sketcher.Constraint("Symmetric", 4, 3, 18, 3, -1, 1),
    Sketcher.Constraint("Symmetric", 1, 3, 21, 3, -1, 1),
    Sketcher.Constraint("Symmetric", 3, 3, 23, 3, -1, 1),
    Sketcher.Constraint("Symmetric", 8, 3, 24, 3, -1, 1),
    Sketcher.Constraint("Symmetric", 10, 3, 26, 3, -1, 1),
    Sketcher.Constraint("Symmetric", 13, 3, 29, 3, -1, 1),
    Sketcher.Constraint("Symmetric", 15, 3, 31, 3, -1, 1),
    Sketcher.Constraint("Symmetric", 3, 3, 8, 3, -2),
    Sketcher.Constraint("Symmetric", 1, 3, 10, 3, -2),
    Sketcher.Constraint("Symmetric", 4, 3, 13, 3, -2),
    Sketcher.Constraint("Symmetric", 6, 3, 15, 3, -2),
    Sketcher.Constraint("Horizontal", 1, 3, 3, 3),
    Sketcher.Constraint("Horizontal", 10, 3, 0, 1),
    Sketcher.Constraint("Horizontal", 1, 1, 2, 1),
    Sketcher.Constraint("Horizontal", 3, 1, 8, 1),
    Sketcher.Constraint("Horizontal", 9, 1, 10, 1),
    Sketcher.Constraint("Horizontal", 26, 3, 20, 1),
    Sketcher.Constraint("Horizontal", 21, 1, 22, 1),
    Sketcher.Constraint("Horizontal", 23, 1, 24, 1),
    Sketcher.Constraint("Horizontal", 25, 1, 26, 1),
    Sketcher.Constraint("Vertical", 4, 3, 6, 3),
    Sketcher.Constraint("Vertical", 31, 3, 4, 1),
    Sketcher.Constraint("Vertical", 5, 1, 6, 1),
    Sketcher.Constraint("Vertical", 18, 3, 12, 1),
    Sketcher.Constraint("Vertical", 13, 1, 14, 1),
    Sketcher.Constraint("Vertical", 15, 1, 16, 1),
    Sketcher.Constraint("Vertical", 17, 1, 18, 1),
    Sketcher.Constraint("Vertical", 7, 1, 28, 1),
    Sketcher.Constraint("Vertical", 29, 1, 30, 1),
    Sketcher.Constraint("Radius", 1, Q("0.025 in")),
    Sketcher.Constraint("DistanceX", 1, 3, -1, 1, Q("0.6 in")),
    Sketcher.Constraint("DistanceY", -1, 1, 4, 3, Q("0.6 in")),
    Sketcher.Constraint("DistanceX", 4, 3, 13, 3, Q("1.5 in")),
    Sketcher.Constraint("DistanceY", 21, 3, 10, 3, Q("1.5 in")),
    Sketcher.Constraint("DistanceX", 3, 3, -1, 1, Q("0.31 in")),
    Sketcher.Constraint("DistanceY", -1, 1, 6, 3, Q("0.31 in")),
])
sketch3.setExpression("Constraints[93]", "Params.sketch3_radius")
pocket2 = body.newObject("PartDesign::Pocket", "Pocket001")
pocket2.Profile = sketch3
pocket2.Type = "ThroughAll"
doc.recompute()

fillet = body.newObject("PartDesign::Fillet", "Fillet")
fillet.Base = (pocket2, edges_at(pocket2, [
    (6.756, -4.601, -181.292),
    (6.756, 4.601, -181.292),
    (-17.272, 17.272, -181.292),
    (-17.272, -17.272, -181.292),
    (17.272, -17.272, -181.292),
    (17.272, 17.272, -181.292),
    (-4.601, -6.756, -181.292),
    (4.601, -6.756, -181.292),
    (-6.756, 4.601, -181.292),
    (-6.756, -4.601, -181.292),
    (4.601, 6.756, -181.292),
    (-4.601, 6.756, -181.292),
]))
fillet.setExpression("Radius", "Params.fillet_radius")
doc.recompute()

fillet2 = body.newObject("PartDesign::Fillet", "Fillet001")
fillet2.Base = (fillet, edges_at(fillet, [
    (14.986, 4.064, -181.292),
    (19.05, 4.064, -181.292),
    (19.05, -4.064, -181.292),
    (14.986, -4.064, -181.292),
    (4.064, -14.986, -181.292),
    (4.064, -19.05, -181.292),
    (-4.064, -19.05, -181.292),
    (-4.064, -14.986, -181.292),
    (-14.986, -4.064, -181.292),
    (-19.05, -4.064, -181.292),
    (-19.05, 4.064, -181.292),
    (-14.986, 4.064, -181.292),
    (-19.05, 19.05, -181.292),
    (19.05, 19.05, -181.292),
    (19.05, -19.05, -181.292),
    (-19.05, -19.05, -181.292),
    (-4.064, 14.986, -181.292),
    (-4.064, 19.05, -181.292),
    (4.064, 19.05, -181.292),
    (4.064, 14.986, -181.292),
]))
fillet2.setExpression("Radius", "Params.fillet2_radius")
doc.recompute()

fillet3 = body.newObject("PartDesign::Fillet", "Fillet002")
fillet3.Base = (fillet2, edges_at(fillet2, [
    (12.442, 10.287, -181.292),
    (16.002, 10.287, -181.292),
    (16.002, 7.239, -181.292),
    (16.002, -7.239, -181.292),
    (16.002, -10.287, -181.292),
    (12.442, -10.287, -181.292),
    (-7.239, -16.002, -181.292),
    (-10.287, -16.002, -181.292),
    (-10.287, -12.442, -181.292),
    (10.287, -12.442, -181.292),
    (10.287, -16.002, -181.292),
    (7.239, -16.002, -181.292),
    (-16.002, 7.239, -181.292),
    (-16.002, 10.287, -181.292),
    (-12.442, 10.287, -181.292),
    (-12.442, -10.287, -181.292),
    (-16.002, -10.287, -181.292),
    (-14.986, -7.239, -181.292),
    (-10.287, 12.442, -181.292),
    (-10.287, 16.002, -181.292),
    (-7.239, 16.002, -181.292),
    (7.239, 16.002, -181.292),
    (10.287, 16.002, -181.292),
    (10.287, 12.442, -181.292),
]))
fillet3.setExpression("Radius", "Params.fillet3_radius")

doc.recompute()
